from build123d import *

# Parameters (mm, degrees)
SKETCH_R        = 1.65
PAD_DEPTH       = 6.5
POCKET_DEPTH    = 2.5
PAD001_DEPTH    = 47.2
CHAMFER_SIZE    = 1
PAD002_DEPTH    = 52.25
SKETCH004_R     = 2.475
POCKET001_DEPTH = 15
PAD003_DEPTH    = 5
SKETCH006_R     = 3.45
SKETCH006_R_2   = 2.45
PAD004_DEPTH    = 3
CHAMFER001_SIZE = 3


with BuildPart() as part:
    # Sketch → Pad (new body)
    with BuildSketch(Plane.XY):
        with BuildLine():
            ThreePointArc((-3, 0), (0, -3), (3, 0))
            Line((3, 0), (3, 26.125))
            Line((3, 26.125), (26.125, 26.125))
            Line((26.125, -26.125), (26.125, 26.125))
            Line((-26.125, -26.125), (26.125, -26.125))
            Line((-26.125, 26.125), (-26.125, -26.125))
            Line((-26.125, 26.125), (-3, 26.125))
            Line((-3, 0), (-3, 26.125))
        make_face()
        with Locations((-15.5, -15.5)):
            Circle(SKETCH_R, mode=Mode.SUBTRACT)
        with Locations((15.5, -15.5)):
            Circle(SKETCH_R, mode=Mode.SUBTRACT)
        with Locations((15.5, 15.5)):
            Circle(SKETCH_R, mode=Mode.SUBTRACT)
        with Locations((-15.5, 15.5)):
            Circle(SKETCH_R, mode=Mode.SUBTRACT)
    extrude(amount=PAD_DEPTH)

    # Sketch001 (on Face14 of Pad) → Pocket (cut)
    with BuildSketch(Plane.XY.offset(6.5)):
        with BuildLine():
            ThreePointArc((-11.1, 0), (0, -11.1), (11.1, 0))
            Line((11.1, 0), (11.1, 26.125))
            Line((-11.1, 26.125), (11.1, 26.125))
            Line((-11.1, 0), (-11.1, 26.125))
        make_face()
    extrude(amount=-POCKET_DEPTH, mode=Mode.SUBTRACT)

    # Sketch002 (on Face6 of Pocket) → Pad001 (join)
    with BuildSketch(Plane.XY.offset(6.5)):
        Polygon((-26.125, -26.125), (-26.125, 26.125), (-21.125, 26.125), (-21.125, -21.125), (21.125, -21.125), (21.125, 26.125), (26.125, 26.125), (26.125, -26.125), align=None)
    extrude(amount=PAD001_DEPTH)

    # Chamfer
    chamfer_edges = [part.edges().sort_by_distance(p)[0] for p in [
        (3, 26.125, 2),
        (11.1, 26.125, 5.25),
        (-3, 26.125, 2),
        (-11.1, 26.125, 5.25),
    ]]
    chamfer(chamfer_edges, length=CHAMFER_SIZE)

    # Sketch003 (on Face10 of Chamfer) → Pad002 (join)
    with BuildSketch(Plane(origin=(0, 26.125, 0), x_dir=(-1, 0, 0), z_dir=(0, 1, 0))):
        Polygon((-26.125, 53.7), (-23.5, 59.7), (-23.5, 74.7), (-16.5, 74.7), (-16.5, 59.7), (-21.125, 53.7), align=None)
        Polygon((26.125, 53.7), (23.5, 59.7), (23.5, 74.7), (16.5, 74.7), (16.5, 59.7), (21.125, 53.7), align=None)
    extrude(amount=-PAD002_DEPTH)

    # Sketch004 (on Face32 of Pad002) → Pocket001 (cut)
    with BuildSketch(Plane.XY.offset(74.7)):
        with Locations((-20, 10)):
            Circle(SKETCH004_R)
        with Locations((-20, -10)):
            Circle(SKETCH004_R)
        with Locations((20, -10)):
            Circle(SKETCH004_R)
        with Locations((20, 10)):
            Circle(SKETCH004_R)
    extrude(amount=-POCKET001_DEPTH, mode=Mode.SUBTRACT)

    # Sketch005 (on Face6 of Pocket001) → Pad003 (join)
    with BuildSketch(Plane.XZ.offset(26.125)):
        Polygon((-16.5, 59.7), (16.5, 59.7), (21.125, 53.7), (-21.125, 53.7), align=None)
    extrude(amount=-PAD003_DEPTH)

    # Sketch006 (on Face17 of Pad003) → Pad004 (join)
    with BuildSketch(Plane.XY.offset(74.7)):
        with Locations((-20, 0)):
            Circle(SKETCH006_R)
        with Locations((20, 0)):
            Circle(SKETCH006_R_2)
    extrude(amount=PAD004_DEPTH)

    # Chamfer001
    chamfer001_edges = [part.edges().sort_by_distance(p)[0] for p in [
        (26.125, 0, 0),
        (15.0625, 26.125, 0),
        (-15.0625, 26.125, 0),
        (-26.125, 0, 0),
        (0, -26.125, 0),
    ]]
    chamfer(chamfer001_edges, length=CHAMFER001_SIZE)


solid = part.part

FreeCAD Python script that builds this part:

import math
import FreeCAD as App
import Part
import Sketcher

V = App.Vector


def edges_at(feature, points):
    """Names of the edges that pass closest to the given points."""
    edges = feature.Shape.Edges
    near = lambda p: min(range(len(edges)), key=lambda i: edges[i].distToShape(Part.Vertex(*p))[0])
    return sorted({f"Edge{near(p) + 1}" for p in points})

doc = App.newDocument("Part")
body = doc.addObject("PartDesign::Body", "Body")

sketch1 = body.newObject("Sketcher::SketchObject", "Sketch")
sketch1.AttachmentSupport = (doc.getObject("XY_Plane"), [""])
sketch1.MapMode = "FlatFace"
sketch1.addGeometry(Part.ArcOfCircle(Part.Circle(V(0, 0, 0), V(0, 0, 1), 3), math.radians(180), math.radians(360)), False)
sketch1.addGeometry(Part.LineSegment(V(-3, 0, 0), V(-3, 26.1, 0)), False)
sketch1.addGeometry(Part.LineSegment(V(-3, 26.1, 0), V(-26.1, 26.1, 0)), False)
sketch1.addGeometry(Part.LineSegment(V(-26.1, 26.1, 0), V(-26.1, -26.1, 0)), False)
sketch1.addGeometry(Part.LineSegment(V(-26.1, -26.1, 0), V(26.1, -26.1, 0)), False)
sketch1.addGeometry(Part.LineSegment(V(26.1, -26.1, 0), V(26.1, 26.1, 0)), False)
sketch1.addGeometry(Part.LineSegment(V(26.1, 26.1, 0), V(3, 26.1, 0)), False)
sketch1.addGeometry(Part.LineSegment(V(3, 26.1, 0), V(3, 0, 0)), False)
sketch1.addGeometry(Part.Circle(V(15.5, -15.5, 0), V(0, 0, 1), 1.6), False)
sketch1.addGeometry(Part.Circle(V(-15.5, -15.5, 0), V(0, 0, 1), 1.6), False)
sketch1.addGeometry(Part.Circle(V(15.5, 15.5, 0), V(0, 0, 1), 1.6), False)
sketch1.addGeometry(Part.Circle(V(-15.5, 15.5, 0), V(0, 0, 1), 1.6), False)
sketch1.addConstraint(Sketcher.Constraint("Tangent", 0, 1, 1, 1))
sketch1.addConstraint(Sketcher.Constraint("Coincident", 1, 2, 2, 1))
sketch1.addConstraint(Sketcher.Constraint("Coincident", 2, 2, 3, 1))
sketch1.addConstraint(Sketcher.Constraint("Coincident", 3, 2, 4, 1))
sketch1.addConstraint(Sketcher.Constraint("Coincident", 4, 2, 5, 1))
sketch1.addConstraint(Sketcher.Constraint("Coincident", 5, 2, 6, 1))
sketch1.addConstraint(Sketcher.Constraint("Coincident", 6, 2, 7, 1))
sketch1.addConstraint(Sketcher.Constraint("Tangent", 7, 2, 0, 2))
sketch1.addConstraint(Sketcher.Constraint("Vertical", 1))
sketch1.addConstraint(Sketcher.Constraint("Horizontal", 2))
sketch1.addConstraint(Sketcher.Constraint("Vertical", 3))
sketch1.addConstraint(Sketcher.Constraint("Horizontal", 4))
sketch1.addConstraint(Sketcher.Constraint("Vertical", 5))
sketch1.addConstraint(Sketcher.Constraint("Horizontal", 6))
sketch1.addConstraint(Sketcher.Constraint("Vertical", 7))
sketch1.addConstraint(Sketcher.Constraint("Coincident", 0, 3, -1, 1))
sketch1.addConstraint(Sketcher.Constraint("Equal", 8, 9))
sketch1.addConstraint(Sketcher.Constraint("Equal", 9, 10))
sketch1.addConstraint(Sketcher.Constraint("Equal", 10, 11))
sketch1.addConstraint(Sketcher.Constraint("Symmetric", 9, 3, 10, 3, -1, 1))
sketch1.addConstraint(Sketcher.Constraint("Symmetric", 8, 3, 11, 3, -1, 1))
sketch1.addConstraint(Sketcher.Constraint("Symmetric", 2, 2, 4, 2, -1, 1))
sketch1.addConstraint(Sketcher.Constraint("Symmetric", 8, 3, 9, 3, -2))
sketch1.addConstraint(Sketcher.Constraint("Horizontal", 2, 2, 5, 2))
sketch1.addConstraint(Sketcher.Constraint("Equal", 4, 3))
sketch1.addConstraint(Sketcher.Constraint("Radius", 0, 3.0))
sketch1.addConstraint(Sketcher.Constraint("Diameter", 8, 3.3))
sketch1.addConstraint(Sketcher.Constraint("DistanceX", 9, 3, 8, 3, 31.0))
sketch1.addConstraint(Sketcher.Constraint("DistanceY", 8, 3, 10, 3, 31.0))
sketch1.addConstraint(Sketcher.Constraint("DistanceX", 4, 1, 4, 2, 52.25))
pad1 = body.newObject("PartDesign::Pad", "Pad")
pad1.Profile = sketch1
pad1.Length = 6.5

sketch2 = body.newObject("Sketcher::SketchObject", "Sketch001")
sketch2.AttachmentSupport = (doc.getObject("XY_Plane"), [""])
sketch2.MapMode = "FlatFace"
sketch2.AttachmentOffset = App.Placement(V(0, 0, 6.5), App.Rotation())
sketch2.addGeometry(Part.ArcOfCircle(Part.Circle(V(0, 0, 0), V(0, 0, 1), 11), math.radians(180), math.radians(360)), False)
sketch2.addGeometry(Part.LineSegment(V(11, 0, 0), V(11, 26, 0)), False)
sketch2.addGeometry(Part.LineSegment(V(11, 26, 0), V(-11, 26, 0)), False)
sketch2.addGeometry(Part.LineSegment(V(-11, 26, 0), V(-11, 0, 0)), False)
sketch2.addConstraint(Sketcher.Constraint("Tangent", 0, 2, 1, 1))
sketch2.addConstraint(Sketcher.Constraint("Coincident", 1, 2, 2, 1))
sketch2.addConstraint(Sketcher.Constraint("Coincident", 2, 2, 3, 1))
sketch2.addConstraint(Sketcher.Constraint("Tangent", 3, 2, 0, 1))
sketch2.addConstraint(Sketcher.Constraint("Vertical", 1))
sketch2.addConstraint(Sketcher.Constraint("Horizontal", 2))
sketch2.addConstraint(Sketcher.Constraint("Vertical", 3))
sketch2.addConstraint(Sketcher.Constraint("Coincident", 0, 3, -1, 1))
sketch2.addConstraint(Sketcher.Constraint("Radius", 0, 11.1))
sketch2.addConstraint(Sketcher.Constraint("DistanceY", 1, 1, 1, 2, 26.125))
pocket1 = body.newObject("PartDesign::Pocket", "Pocket")
pocket1.Profile = sketch2
pocket1.Length = 2.5

sketch3 = body.newObject("Sketcher::SketchObject", "Sketch002")
sketch3.AttachmentSupport = (doc.getObject("XY_Plane"), [""])
sketch3.MapMode = "FlatFace"
sketch3.AttachmentOffset = App.Placement(V(0, 0, 6.5), App.Rotation())
sketch3.addGeometry(Part.LineSegment(V(-26, 26, 0), V(-26, -26, 0)), False)
sketch3.addGeometry(Part.LineSegment(V(-26, -26, 0), V(26, -26, 0)), False)
sketch3.addGeometry(Part.LineSegment(V(26, -26, 0), V(26, 26, 0)), False)
sketch3.addGeometry(Part.LineSegment(V(26, 26, 0), V(21, 26, 0)), False)
sketch3.addGeometry(Part.LineSegment(V(21, 26, 0), V(21, -21, 0)), False)
sketch3.addGeometry(Part.LineSegment(V(21, -21, 0), V(-21, -21, 0)), False)
sketch3.addGeometry(Part.LineSegment(V(-21, -21, 0), V(-21, 26, 0)), False)
sketch3.addGeometry(Part.LineSegment(V(-21, 26, 0), V(-26, 26, 0)), False)
sketch3.addConstraint(Sketcher.Constraint("Coincident", 0, 2, 1, 1))
sketch3.addConstraint(Sketcher.Constraint("Coincident", 1, 2, 2, 1))
sketch3.addConstraint(Sketcher.Constraint("Coincident", 2, 2, 3, 1))
sketch3.addConstraint(Sketcher.Constraint("Coincident", 3, 2, 4, 1))
sketch3.addConstraint(Sketcher.Constraint("Coincident", 4, 2, 5, 1))
sketch3.addConstraint(Sketcher.Constraint("Coincident", 5, 2, 6, 1))
sketch3.addConstraint(Sketcher.Constraint("Coincident", 6, 2, 7, 1))
sketch3.addConstraint(Sketcher.Constraint("Coincident", 7, 2, 0, 1))
sketch3.addConstraint(Sketcher.Constraint("Vertical", 0))
sketch3.addConstraint(Sketcher.Constraint("Horizontal", 1))
sketch3.addConstraint(Sketcher.Constraint("Vertical", 2))
sketch3.addConstraint(Sketcher.Constraint("Horizontal", 3))
sketch3.addConstraint(Sketcher.Constraint("Vertical", 4))
sketch3.addConstraint(Sketcher.Constraint("Horizontal", 5))
sketch3.addConstraint(Sketcher.Constraint("Vertical", 6))
sketch3.addConstraint(Sketcher.Constraint("Horizontal", 7))
sketch3.addConstraint(Sketcher.Constraint("Symmetric", 0, 2, 2, 2, -1, 1))
sketch3.addConstraint(Sketcher.Constraint("Symmetric", 3, 2, 6, 2, -2))
sketch3.addConstraint(Sketcher.Constraint("Equal", 1, 0))
sketch3.addConstraint(Sketcher.Constraint("DistanceX", 3, 2, 3, 1, 5.0))
sketch3.addConstraint(Sketcher.Constraint("DistanceY", 1, 2, 4, 2, 5.0))
sketch3.addConstraint(Sketcher.Constraint("DistanceX", 1, 1, 1, 2, 52.25))
pad2 = body.newObject("PartDesign::Pad", "Pad001")
pad2.Profile = sketch3
pad2.Length = 47.2
doc.recompute()

chamfer = body.newObject("PartDesign::Chamfer", "Chamfer")
chamfer.Base = (pad2, edges_at(pad2, [
    (3, 26.125, 2),
    (11.1, 26.125, 5.25),
    (-3, 26.125, 2),
    (-11.1, 26.125, 5.25),
]))
chamfer.Size = 1

sketch4 = body.newObject("Sketcher::SketchObject", "Sketch003")
sketch4.AttachmentSupport = (doc.getObject("XZ_Plane"), [""])
sketch4.MapMode = "FlatFace"
sketch4.AttachmentOffset = App.Placement(V(0, 0, -26.125), App.Rotation())
sketch4.addGeometry(Part.LineSegment(V(24, 60, 0), V(26, 54, 0)), False)
sketch4.addGeometry(Part.LineSegment(V(26, 54, 0), V(21, 54, 0)), False)
sketch4.addGeometry(Part.LineSegment(V(21, 54, 0), V(16, 60, 0)), False)
sketch4.addGeometry(Part.LineSegment(V(16, 60, 0), V(16, 75, 0)), False)
sketch4.addGeometry(Part.LineSegment(V(16, 75, 0), V(24, 75, 0)), False)
sketch4.addGeometry(Part.LineSegment(V(24, 75, 0), V(24, 60, 0)), False)
sketch4.addGeometry(Part.LineSegment(V(-26, 54, 0), V(-24, 60, 0)), False)
sketch4.addGeometry(Part.LineSegment(V(-24, 60, 0), V(-24, 75, 0)), False)
sketch4.addGeometry(Part.LineSegment(V(-24, 75, 0), V(-16, 75, 0)), False)
sketch4.addGeometry(Part.LineSegment(V(-16, 75, 0), V(-16, 60, 0)), False)
sketch4.addGeometry(Part.LineSegment(V(-16, 60, 0), V(-21, 54, 0)), False)
sketch4.addGeometry(Part.LineSegment(V(-21, 54, 0), V(-26, 54, 0)), False)
sketch4.addConstraint(Sketcher.Constraint("Coincident", 0, 2, 1, 1))
sketch4.addConstraint(Sketcher.Constraint("Coincident", 1, 2, 2, 1))
sketch4.addConstraint(Sketcher.Constraint("Coincident", 2, 2, 3, 1))
sketch4.addConstraint(Sketcher.Constraint("Coincident", 3, 2, 4, 1))
sketch4.addConstraint(Sketcher.Constraint("Coincident", 4, 2, 5, 1))
sketch4.addConstraint(Sketcher.Constraint("Coincident", 5, 2, 0, 1))
sketch4.addConstraint(Sketcher.Constraint("Coincident", 6, 2, 7, 1))
sketch4.addConstraint(Sketcher.Constraint("Coincident", 7, 2, 8, 1))
sketch4.addConstraint(Sketcher.Constraint("Coincident", 8, 2, 9, 1))
sketch4.addConstraint(Sketcher.Constraint("Coincident", 9, 2, 10, 1))
sketch4.addConstraint(Sketcher.Constraint("Coincident", 10, 2, 11, 1))
sketch4.addConstraint(Sketcher.Constraint("Coincident", 11, 2, 6, 1))
sketch4.addConstraint(Sketcher.Constraint("Horizontal", 1))
sketch4.addConstraint(Sketcher.Constraint("Vertical", 3))
sketch4.addConstraint(Sketcher.Constraint("Horizontal", 4))
sketch4.addConstraint(Sketcher.Constraint("Vertical", 5))
sketch4.addConstraint(Sketcher.Constraint("Vertical", 7))
sketch4.addConstraint(Sketcher.Constraint("Horizontal", 8))
sketch4.addConstraint(Sketcher.Constraint("Vertical", 9))
sketch4.addConstraint(Sketcher.Constraint("Horizontal", 11))
sketch4.addConstraint(Sketcher.Constraint("Symmetric", 5, 2, 6, 2, -2))
sketch4.addConstraint(Sketcher.Constraint("Symmetric", 3, 2, 8, 2, -2))
sketch4.addConstraint(Sketcher.Constraint("Symmetric", 1, 2, 10, 2, -2))
sketch4.addConstraint(Sketcher.Constraint("Horizontal", 2, 2, 5, 2))
sketch4.addConstraint(Sketcher.Constraint("Horizontal", 6, 2, 9, 2))
sketch4.addConstraint(Sketcher.Constraint("Equal", 1, 11))
sketch4.addConstraint(Sketcher.Constraint("DistanceX", 1, 2, 1, 1, 5.0))
sketch4.addConstraint(Sketcher.Constraint("DistanceX", 4, 1, 4, 2, 7.0))
sketch4.addConstraint(Sketcher.Constraint("DistanceY", 3, 1, 3, 2, 15.0))
sketch4.addConstraint(Sketcher.Constraint("DistanceY", 1, 2, 2, 2, 6.0))
sketch4.addConstraint(Sketcher.Constraint("DistanceX", 6, 2, 2, 2, 40.0))
sketch4.addConstraint(Sketcher.Constraint("DistanceY", -1, 1, 0, 2, 53.7))
sketch4.addConstraint(Sketcher.Constraint("DistanceX", -1, 1, 0, 2, 26.125))
pad3 = body.newObject("PartDesign::Pad", "Pad002")
pad3.Profile = sketch4
pad3.Length = 52.25

sketch5 = body.newObject("Sketcher::SketchObject", "Sketch004")
sketch5.AttachmentSupport = (doc.getObject("XY_Plane"), [""])
sketch5.MapMode = "FlatFace"
sketch5.AttachmentOffset = App.Placement(V(0, 0, 74.7), App.Rotation())
sketch5.addGeometry(Part.Circle(V(-20, 10, 0), V(0, 0, 1), 2.5), False)
sketch5.addGeometry(Part.Circle(V(-20, -10, 0), V(0, 0, 1), 2.5), False)
sketch5.addGeometry(Part.Circle(V(20, -10, 0), V(0, 0, 1), 2.5), False)
sketch5.addGeometry(Part.Circle(V(20, 10, 0), V(0, 0, 1), 2.5), False)
sketch5.addConstraint(Sketcher.Constraint("Equal", 0, 1))
sketch5.addConstraint(Sketcher.Constraint("Equal", 1, 2))
sketch5.addConstraint(Sketcher.Constraint("Equal", 2, 3))
sketch5.addConstraint(Sketcher.Constraint("Symmetric", 0, 3, 2, 3, -1, 1))
sketch5.addConstraint(Sketcher.Constraint("Symmetric", 1, 3, 3, 3, -1, 1))
sketch5.addConstraint(Sketcher.Constraint("Symmetric", 1, 3, 2, 3, -2))
sketch5.addConstraint(Sketcher.Constraint("Diameter", 0, 4.95))
sketch5.addConstraint(Sketcher.Constraint("DistanceX", 0, 3, -1, 1, 20.0))
sketch5.addConstraint(Sketcher.Constraint("DistanceY", -1, 1, 0, 3, 10.0))
pocket2 = body.newObject("PartDesign::Pocket", "Pocket001")
pocket2.Profile = sketch5
pocket2.Length = 15

sketch6 = body.newObject("Sketcher::SketchObject", "Sketch005")
sketch6.AttachmentSupport = (doc.getObject("XZ_Plane"), [""])
sketch6.MapMode = "FlatFace"
sketch6.AttachmentOffset = App.Placement(V(0, 0, 26.125), App.Rotation())
sketch6.addGeometry(Part.LineSegment(V(16, 60, 0), V(-16, 60, 0)), False)
sketch6.addGeometry(Part.LineSegment(V(-16, 60, 0), V(-21, 54, 0)), False)
sketch6.addGeometry(Part.LineSegment(V(-21, 54, 0), V(21, 54, 0)), False)
sketch6.addGeometry(Part.LineSegment(V(21, 54, 0), V(16, 60, 0)), False)
sketch6.addConstraint(Sketcher.Constraint("Coincident", 0, 2, 1, 1))
sketch6.addConstraint(Sketcher.Constraint("Coincident", 1, 2, 2, 1))
sketch6.addConstraint(Sketcher.Constraint("Coincident", 2, 2, 3, 1))
sketch6.addConstraint(Sketcher.Constraint("Coincident", 3, 2, 0, 1))
sketch6.addConstraint(Sketcher.Constraint("Horizontal", 0))
sketch6.addConstraint(Sketcher.Constraint("Horizontal", 2))
sketch6.addConstraint(Sketcher.Constraint("Equal", 1, 3))
sketch6.addConstraint(Sketcher.Constraint("DistanceX", 0, 2, 0, 1, 33.0))
sketch6.addConstraint(Sketcher.Constraint("DistanceY", 1, 2, 0, 2, 6.0))
sketch6.addConstraint(Sketcher.Constraint("DistanceX", 2, 1, 2, 2, 42.25))
sketch6.addConstraint(Sketcher.Constraint("DistanceX", 0, 2, -1, 1, 16.5))
sketch6.addConstraint(Sketcher.Constraint("DistanceY", -1, 1, 0, 2, 59.7))
pad4 = body.newObject("PartDesign::Pad", "Pad003")
pad4.Profile = sketch6
pad4.Length = 5
pad4.Reversed = True

sketch7 = body.newObject("Sketcher::SketchObject", "Sketch006")
sketch7.AttachmentSupport = (doc.getObject("XY_Plane"), [""])
sketch7.MapMode = "FlatFace"
sketch7.AttachmentOffset = App.Placement(V(0, 0, 74.7), App.Rotation())
sketch7.addGeometry(Part.Circle(V(-20, 0, 0), V(0, 0, 1), 3.5), False)
sketch7.addGeometry(Part.Circle(V(20, 0, 0), V(0, 0, 1), 2.5), False)
sketch7.addConstraint(Sketcher.Constraint("Symmetric", 0, 3, 1, 3, -1, 1))
sketch7.addConstraint(Sketcher.Constraint("PointOnObject", 0, 3, -1))
sketch7.addConstraint(Sketcher.Constraint("Diameter", 0, 6.9))
sketch7.addConstraint(Sketcher.Constraint("Diameter", 1, 4.9))
sketch7.addConstraint(Sketcher.Constraint("DistanceX", 0, 3, -1, 1, 20.0))
pad5 = body.newObject("PartDesign::Pad", "Pad004")
pad5.Profile = sketch7
pad5.Length = 3
doc.recompute()

chamfer2 = body.newObject("PartDesign::Chamfer", "Chamfer001")
chamfer2.Base = (pad5, edges_at(pad5, [
    (26.125, 0, 0),
    (15.062, 26.125, 0),
    (-15.062, 26.125, 0),
    (-26.125, 0, 0),
    (0, -26.125, 0),
]))
chamfer2.Size = 3

doc.recompute()
